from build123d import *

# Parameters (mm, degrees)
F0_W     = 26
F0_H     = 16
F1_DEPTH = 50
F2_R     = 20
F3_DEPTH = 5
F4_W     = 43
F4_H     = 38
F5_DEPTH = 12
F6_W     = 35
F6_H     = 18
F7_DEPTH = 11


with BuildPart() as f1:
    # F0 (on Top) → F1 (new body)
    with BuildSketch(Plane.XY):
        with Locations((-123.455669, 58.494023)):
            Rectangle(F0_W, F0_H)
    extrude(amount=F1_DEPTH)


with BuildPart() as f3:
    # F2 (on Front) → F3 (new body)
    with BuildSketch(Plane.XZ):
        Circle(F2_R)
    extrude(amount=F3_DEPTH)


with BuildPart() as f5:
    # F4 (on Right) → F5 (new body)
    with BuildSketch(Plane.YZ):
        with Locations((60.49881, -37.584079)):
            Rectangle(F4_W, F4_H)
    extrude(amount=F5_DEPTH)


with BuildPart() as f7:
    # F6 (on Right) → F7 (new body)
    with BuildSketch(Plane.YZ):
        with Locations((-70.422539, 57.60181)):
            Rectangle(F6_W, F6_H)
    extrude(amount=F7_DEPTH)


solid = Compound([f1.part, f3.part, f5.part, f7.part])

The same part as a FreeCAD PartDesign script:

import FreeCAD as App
import Part
import Sketcher

V = App.Vector
Q = App.Units.Quantity


def add_polygon(sketch, points):
    """Adds a closed chain of lines whose ends are joined by coincident constraints."""
    first, n = sketch.GeometryCount, len(points)
    for a, b in zip(points, points[1:] + points[:1]):
        sketch.addGeometry(Part.LineSegment(App.Vector(*a, 0), App.Vector(*b, 0)), False)
    for i in range(n):
        sketch.addConstraint(Sketcher.Constraint("Coincident", first + i, 2, first + (i + 1) % n, 1))

doc = App.newDocument("Part")
body = doc.addObject("PartDesign::Body", "Body")

sketch1 = body.newObject("Sketcher::SketchObject", "Sketch")
sketch1.AttachmentSupport = (doc.getObject("XY_Plane"), [""])
sketch1.MapMode = "FlatFace"
add_polygon(sketch1, [(-136, 66), (-136, 50), (-110, 50), (-110, 66)])
sketch1.addConstraint(Sketcher.Constraint("Vertical", 0))
sketch1.addConstraint(Sketcher.Constraint("Horizontal", 1))
sketch1.addConstraint(Sketcher.Constraint("Vertical", 2))
sketch1.addConstraint(Sketcher.Constraint("Horizontal", 3))
sketch1.addConstraint(Sketcher.Constraint("DistanceX", 1, 1, 1, 2, Q("26 mm")))
sketch1.addConstraint(Sketcher.Constraint("DistanceY", 0, 2, 0, 1, Q("16 mm")))
sketch1.addConstraint(Sketcher.Constraint("DistanceX", 0, 2, -1, 1, Q("136.455669 mm")))
sketch1.addConstraint(Sketcher.Constraint("DistanceY", -1, 1, 0, 2, Q("50.494023 mm")))
pad1 = body.newObject("PartDesign::Pad", "Pad")
pad1.Profile = sketch1
pad1.Length = 50
body2 = doc.addObject("PartDesign::Body", "Body001")

sketch2 = body2.newObject("Sketcher::SketchObject", "Sketch001")
sketch2.AttachmentSupport = (doc.getObject("XZ_Plane001"), [""])
sketch2.MapMode = "FlatFace"
sketch2.addGeometry(Part.Circle(V(0, 0, 0), V(0, 0, 1), 20), False)
sketch2.addConstraint(Sketcher.Constraint("Coincident", 0, 3, -1, 1))
sketch2.addConstraint(Sketcher.Constraint("Diameter", 0, Q("40 mm")))
pad2 = body2.newObject("PartDesign::Pad", "Pad001")
pad2.Profile = sketch2
pad2.Length = 5
body3 = doc.addObject("PartDesign::Body", "Body002")

sketch3 = body3.newObject("Sketcher::SketchObject", "Sketch002")
sketch3.AttachmentSupport = (doc.getObject("YZ_Plane002"), [""])
sketch3.MapMode = "FlatFace"
add_polygon(sketch3, [(39, -19), (39, -57), (82, -57), (82, -19)])
sketch3.addConstraint(Sketcher.Constraint("Vertical", 0))
sketch3.addConstraint(Sketcher.Constraint("Horizontal", 1))
sketch3.addConstraint(Sketcher.Constraint("Vertical", 2))
sketch3.addConstraint(Sketcher.Constraint("Horizontal", 3))
sketch3.addConstraint(Sketcher.Constraint("DistanceX", 1, 1, 1, 2, Q("43 mm")))
sketch3.addConstraint(Sketcher.Constraint("DistanceY", 0, 2, 0, 1, Q("38 mm")))
sketch3.addConstraint(Sketcher.Constraint("DistanceX", -1, 1, 0, 2, Q("38.99881 mm")))
sketch3.addConstraint(Sketcher.Constraint("DistanceY", 0, 2, -1, 1, Q("56.584079 mm")))
pad3 = body3.newObject("PartDesign::Pad", "Pad002")
pad3.Profile = sketch3
pad3.Length = 12
body4 = doc.addObject("PartDesign::Body", "Body003")

sketch4 = body4.newObject("Sketcher::SketchObject", "Sketch003")
sketch4.AttachmentSupport = (doc.getObject("YZ_Plane003"), [""])
sketch4.MapMode = "FlatFace"
add_polygon(sketch4, [(-88, 67), (-88, 49), (-53, 49), (-53, 67)])
sketch4.addConstraint(Sketcher.Constraint("Vertical", 0))
sketch4.addConstraint(Sketcher.Constraint("Horizontal", 1))
sketch4.addConstraint(Sketcher.Constraint("Vertical", 2))
sketch4.addConstraint(Sketcher.Constraint("Horizontal", 3))
sketch4.addConstraint(Sketcher.Constraint("DistanceX", 1, 1, 1, 2, Q("35 mm")))
sketch4.addConstraint(Sketcher.Constraint("DistanceY", 0, 2, 0, 1, Q("18 mm")))
sketch4.addConstraint(Sketcher.Constraint("DistanceX", 0, 2, -1, 1, Q("87.922539 mm")))
sketch4.addConstraint(Sketcher.Constraint("DistanceY", -1, 1, 0, 2, Q("48.60181 mm")))
pad4 = body4.newObject("PartDesign::Pad", "Pad003")
pad4.Profile = sketch4
pad4.Length = 11

doc.recompute()
